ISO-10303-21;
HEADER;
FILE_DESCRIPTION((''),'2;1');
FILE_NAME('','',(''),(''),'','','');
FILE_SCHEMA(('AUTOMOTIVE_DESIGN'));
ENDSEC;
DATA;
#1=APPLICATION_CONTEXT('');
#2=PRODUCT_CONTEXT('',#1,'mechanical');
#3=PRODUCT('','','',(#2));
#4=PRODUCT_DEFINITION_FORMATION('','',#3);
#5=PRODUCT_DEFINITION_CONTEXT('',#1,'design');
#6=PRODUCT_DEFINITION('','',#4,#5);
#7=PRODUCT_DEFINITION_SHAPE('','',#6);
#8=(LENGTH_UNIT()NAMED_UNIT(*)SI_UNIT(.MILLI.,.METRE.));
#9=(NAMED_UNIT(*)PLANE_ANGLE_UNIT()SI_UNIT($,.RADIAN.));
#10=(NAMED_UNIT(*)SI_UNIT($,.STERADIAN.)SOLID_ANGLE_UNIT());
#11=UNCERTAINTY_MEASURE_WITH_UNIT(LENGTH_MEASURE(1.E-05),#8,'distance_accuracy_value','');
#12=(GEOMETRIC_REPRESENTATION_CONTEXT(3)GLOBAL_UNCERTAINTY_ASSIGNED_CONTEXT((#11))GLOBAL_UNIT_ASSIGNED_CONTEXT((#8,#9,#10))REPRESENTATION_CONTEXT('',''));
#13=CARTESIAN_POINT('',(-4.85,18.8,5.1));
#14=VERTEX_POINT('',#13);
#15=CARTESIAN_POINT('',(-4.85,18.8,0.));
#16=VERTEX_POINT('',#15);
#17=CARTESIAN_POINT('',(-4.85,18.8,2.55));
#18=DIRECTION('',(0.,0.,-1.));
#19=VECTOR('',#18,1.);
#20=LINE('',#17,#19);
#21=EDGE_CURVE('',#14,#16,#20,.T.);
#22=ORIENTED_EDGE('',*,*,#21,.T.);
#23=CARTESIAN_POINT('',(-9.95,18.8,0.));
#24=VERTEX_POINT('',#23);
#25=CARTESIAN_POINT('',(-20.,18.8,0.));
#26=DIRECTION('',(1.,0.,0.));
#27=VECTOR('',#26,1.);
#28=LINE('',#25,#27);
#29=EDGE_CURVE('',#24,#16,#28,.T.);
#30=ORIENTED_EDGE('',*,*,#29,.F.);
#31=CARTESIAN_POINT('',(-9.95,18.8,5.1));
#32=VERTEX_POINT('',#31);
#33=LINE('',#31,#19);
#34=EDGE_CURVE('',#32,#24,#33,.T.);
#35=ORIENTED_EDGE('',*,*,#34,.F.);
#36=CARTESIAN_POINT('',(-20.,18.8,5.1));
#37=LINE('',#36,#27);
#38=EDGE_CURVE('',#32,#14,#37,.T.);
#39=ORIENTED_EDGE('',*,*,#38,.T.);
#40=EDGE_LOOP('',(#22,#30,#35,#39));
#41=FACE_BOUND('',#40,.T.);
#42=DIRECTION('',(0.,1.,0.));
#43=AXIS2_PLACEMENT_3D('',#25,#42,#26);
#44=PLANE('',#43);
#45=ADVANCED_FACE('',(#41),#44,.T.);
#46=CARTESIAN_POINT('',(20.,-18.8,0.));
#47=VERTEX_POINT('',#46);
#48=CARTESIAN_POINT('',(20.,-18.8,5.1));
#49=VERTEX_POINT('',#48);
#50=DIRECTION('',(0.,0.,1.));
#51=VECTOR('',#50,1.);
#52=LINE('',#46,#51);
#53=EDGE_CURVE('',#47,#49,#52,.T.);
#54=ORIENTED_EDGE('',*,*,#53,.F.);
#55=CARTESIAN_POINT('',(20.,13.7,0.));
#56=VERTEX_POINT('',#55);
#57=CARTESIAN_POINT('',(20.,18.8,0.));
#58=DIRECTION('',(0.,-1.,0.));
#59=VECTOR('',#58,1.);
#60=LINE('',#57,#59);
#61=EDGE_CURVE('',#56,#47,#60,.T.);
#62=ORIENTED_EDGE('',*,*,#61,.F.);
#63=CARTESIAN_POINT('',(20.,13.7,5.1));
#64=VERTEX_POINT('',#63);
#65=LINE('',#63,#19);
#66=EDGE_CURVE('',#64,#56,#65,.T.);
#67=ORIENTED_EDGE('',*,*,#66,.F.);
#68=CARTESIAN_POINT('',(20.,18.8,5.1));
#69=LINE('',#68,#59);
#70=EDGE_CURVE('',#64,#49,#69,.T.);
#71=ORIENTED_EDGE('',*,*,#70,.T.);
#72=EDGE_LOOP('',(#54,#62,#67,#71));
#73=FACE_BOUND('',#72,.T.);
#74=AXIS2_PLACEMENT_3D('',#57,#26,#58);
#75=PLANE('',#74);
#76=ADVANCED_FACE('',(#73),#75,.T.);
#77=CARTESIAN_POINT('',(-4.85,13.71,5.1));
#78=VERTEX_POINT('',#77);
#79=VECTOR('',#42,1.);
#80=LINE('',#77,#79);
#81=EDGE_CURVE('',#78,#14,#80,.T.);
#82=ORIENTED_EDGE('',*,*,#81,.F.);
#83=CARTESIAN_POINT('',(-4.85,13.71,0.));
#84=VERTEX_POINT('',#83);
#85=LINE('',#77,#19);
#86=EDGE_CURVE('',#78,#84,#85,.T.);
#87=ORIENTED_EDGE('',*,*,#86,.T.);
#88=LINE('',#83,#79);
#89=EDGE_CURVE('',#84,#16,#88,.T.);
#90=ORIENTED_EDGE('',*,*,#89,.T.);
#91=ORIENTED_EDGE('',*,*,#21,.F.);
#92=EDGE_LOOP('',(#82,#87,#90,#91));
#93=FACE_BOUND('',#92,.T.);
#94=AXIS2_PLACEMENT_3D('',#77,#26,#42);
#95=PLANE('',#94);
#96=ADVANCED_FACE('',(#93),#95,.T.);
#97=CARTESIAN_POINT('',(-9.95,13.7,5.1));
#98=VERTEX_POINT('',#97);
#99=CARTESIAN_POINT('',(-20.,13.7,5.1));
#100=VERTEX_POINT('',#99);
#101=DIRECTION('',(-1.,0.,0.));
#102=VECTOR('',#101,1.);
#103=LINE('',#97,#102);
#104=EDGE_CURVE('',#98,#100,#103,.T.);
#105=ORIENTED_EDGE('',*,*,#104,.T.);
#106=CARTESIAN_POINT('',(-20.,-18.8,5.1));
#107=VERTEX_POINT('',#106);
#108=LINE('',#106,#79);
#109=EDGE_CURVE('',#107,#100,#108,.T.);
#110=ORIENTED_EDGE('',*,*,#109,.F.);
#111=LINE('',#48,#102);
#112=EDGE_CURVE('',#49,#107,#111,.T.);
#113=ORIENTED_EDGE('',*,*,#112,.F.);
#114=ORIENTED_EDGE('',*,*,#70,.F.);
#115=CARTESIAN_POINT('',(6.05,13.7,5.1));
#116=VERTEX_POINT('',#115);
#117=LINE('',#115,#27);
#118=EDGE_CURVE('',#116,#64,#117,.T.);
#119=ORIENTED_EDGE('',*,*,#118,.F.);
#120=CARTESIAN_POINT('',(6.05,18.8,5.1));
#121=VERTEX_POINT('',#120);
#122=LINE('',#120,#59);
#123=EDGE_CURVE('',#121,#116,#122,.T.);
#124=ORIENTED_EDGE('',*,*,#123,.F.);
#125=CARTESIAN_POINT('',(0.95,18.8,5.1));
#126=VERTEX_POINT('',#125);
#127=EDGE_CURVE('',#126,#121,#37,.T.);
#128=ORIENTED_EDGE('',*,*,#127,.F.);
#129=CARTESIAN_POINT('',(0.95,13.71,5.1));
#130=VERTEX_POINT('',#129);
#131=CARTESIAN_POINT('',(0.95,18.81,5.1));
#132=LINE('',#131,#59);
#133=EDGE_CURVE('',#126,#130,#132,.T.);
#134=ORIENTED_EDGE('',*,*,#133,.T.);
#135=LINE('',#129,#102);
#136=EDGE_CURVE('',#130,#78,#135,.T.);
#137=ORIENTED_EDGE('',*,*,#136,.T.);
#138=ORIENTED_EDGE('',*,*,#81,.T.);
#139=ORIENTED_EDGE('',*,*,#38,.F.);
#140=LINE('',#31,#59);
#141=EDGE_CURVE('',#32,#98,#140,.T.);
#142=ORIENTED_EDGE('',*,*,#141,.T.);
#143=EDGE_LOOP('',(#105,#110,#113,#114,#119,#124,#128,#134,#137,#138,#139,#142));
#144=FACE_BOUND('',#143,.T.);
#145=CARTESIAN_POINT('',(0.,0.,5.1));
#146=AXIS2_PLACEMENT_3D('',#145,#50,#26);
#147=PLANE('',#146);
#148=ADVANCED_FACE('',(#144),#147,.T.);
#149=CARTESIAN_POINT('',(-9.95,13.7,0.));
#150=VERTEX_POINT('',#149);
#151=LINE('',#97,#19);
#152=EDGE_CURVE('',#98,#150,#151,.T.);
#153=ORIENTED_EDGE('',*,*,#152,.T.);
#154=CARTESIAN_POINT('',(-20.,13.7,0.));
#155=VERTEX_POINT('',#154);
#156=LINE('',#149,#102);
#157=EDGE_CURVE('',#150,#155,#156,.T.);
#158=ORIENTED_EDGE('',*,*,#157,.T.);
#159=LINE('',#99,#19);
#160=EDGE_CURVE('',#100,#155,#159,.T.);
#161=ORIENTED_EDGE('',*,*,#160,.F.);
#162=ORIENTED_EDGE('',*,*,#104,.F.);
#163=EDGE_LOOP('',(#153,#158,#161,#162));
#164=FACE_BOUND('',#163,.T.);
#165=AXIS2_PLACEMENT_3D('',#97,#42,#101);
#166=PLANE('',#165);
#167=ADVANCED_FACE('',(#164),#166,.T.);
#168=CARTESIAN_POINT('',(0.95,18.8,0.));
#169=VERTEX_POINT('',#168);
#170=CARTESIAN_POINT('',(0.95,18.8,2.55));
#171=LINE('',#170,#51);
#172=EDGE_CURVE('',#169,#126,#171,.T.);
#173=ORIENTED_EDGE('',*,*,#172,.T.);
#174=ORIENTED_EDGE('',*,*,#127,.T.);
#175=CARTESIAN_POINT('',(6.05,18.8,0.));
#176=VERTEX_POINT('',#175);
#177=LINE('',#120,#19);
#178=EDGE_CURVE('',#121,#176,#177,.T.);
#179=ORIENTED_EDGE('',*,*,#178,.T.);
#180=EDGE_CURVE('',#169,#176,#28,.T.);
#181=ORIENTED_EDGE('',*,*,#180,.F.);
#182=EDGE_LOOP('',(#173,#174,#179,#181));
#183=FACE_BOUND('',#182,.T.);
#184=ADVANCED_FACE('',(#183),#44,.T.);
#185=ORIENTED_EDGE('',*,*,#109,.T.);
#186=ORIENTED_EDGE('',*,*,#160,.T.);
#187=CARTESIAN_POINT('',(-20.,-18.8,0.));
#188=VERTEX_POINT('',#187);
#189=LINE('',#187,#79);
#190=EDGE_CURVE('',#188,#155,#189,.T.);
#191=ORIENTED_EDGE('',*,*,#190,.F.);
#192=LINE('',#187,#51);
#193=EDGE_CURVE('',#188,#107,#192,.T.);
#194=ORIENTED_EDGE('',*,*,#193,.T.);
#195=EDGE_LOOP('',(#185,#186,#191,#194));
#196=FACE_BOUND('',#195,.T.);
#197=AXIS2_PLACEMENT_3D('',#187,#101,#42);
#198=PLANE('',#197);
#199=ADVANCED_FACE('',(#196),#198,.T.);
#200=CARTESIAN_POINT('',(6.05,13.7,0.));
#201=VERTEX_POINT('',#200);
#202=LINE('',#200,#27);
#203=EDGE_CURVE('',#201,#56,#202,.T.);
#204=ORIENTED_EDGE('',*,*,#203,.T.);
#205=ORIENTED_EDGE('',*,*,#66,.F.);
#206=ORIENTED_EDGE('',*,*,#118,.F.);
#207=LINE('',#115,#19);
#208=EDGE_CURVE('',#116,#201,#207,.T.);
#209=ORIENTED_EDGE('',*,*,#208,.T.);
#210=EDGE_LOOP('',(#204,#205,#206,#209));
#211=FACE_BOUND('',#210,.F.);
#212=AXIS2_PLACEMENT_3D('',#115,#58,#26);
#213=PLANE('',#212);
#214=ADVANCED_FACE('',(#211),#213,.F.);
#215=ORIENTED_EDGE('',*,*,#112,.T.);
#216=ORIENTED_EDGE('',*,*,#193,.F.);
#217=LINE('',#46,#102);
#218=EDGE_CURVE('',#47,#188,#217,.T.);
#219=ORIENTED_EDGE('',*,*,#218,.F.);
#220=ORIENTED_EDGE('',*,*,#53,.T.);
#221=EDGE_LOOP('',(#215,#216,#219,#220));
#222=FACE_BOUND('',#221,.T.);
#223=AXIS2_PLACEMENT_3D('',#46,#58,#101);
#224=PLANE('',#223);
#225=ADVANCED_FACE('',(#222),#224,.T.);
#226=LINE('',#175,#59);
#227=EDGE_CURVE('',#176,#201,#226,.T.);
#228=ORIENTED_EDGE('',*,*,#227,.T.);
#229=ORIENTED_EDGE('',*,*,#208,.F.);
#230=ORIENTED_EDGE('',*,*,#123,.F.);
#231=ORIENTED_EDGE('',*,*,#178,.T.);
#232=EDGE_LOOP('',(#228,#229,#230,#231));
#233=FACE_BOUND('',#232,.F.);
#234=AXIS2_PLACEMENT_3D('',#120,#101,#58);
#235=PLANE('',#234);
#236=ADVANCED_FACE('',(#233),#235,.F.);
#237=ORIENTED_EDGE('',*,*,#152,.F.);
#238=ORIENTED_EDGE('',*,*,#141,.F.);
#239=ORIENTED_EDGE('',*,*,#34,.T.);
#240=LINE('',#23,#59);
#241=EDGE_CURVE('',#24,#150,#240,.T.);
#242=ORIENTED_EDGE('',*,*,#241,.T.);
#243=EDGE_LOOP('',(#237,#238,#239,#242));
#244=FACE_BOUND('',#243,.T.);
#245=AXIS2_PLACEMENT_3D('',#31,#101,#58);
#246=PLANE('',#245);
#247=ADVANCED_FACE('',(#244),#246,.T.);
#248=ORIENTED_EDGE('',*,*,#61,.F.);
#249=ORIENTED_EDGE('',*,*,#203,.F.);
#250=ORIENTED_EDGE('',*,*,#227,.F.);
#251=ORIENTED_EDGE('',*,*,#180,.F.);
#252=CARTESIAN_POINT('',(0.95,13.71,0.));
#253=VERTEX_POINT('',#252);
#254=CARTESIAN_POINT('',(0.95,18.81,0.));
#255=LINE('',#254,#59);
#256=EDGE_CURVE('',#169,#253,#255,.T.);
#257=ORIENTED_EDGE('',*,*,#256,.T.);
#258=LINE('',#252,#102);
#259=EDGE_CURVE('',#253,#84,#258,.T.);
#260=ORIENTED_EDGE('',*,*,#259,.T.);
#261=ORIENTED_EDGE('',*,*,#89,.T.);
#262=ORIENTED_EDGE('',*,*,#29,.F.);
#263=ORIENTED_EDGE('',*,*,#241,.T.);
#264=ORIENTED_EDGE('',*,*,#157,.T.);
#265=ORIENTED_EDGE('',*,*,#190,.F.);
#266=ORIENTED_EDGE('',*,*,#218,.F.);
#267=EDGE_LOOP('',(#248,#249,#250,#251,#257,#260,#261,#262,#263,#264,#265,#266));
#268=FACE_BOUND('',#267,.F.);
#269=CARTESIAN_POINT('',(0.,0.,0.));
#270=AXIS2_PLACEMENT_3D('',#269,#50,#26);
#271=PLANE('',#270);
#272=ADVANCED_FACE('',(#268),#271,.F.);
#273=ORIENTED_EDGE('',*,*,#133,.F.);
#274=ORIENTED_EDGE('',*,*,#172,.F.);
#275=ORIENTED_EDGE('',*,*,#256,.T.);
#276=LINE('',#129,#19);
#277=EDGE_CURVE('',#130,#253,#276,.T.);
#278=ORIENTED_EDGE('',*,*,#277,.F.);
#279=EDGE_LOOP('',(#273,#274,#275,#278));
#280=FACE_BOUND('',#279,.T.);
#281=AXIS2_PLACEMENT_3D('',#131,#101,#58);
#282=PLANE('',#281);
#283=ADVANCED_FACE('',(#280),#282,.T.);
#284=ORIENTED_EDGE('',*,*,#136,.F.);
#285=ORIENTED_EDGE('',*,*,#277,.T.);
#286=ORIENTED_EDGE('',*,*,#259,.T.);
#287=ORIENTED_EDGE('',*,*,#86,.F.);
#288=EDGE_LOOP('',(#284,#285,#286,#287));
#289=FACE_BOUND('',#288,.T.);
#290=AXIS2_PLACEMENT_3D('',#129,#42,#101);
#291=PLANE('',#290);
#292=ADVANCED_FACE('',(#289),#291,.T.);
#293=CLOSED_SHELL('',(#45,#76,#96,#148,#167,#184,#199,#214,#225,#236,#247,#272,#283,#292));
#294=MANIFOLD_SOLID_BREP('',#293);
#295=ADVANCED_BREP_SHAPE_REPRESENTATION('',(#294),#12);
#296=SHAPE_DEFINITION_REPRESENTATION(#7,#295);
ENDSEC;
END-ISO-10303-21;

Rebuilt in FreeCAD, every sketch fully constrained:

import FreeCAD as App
import Part
import Sketcher

doc = App.newDocument("Part")
body = doc.addObject("PartDesign::Body", "Body")

# Sketch on XY plane
sketch1 = body.newObject("Sketcher::SketchObject", "Sketch")
sketch1.AttachmentSupport = (doc.getObject("XY_Plane"), [""])
sketch1.MapMode = "FlatFace"
sketch1.addGeometry([
    Part.LineSegment(App.Vector(-20, -18.8, 0), App.Vector(20, -18.8, 0)),
    Part.LineSegment(App.Vector(20, -18.8, 0), App.Vector(20, 18.8, 0)),
    Part.LineSegment(App.Vector(20, 18.8, 0), App.Vector(-20, 18.8, 0)),
    Part.LineSegment(App.Vector(-20, 18.8, 0), App.Vector(-20, -18.8, 0)),
], False)
sketch1.addConstraint([
    Sketcher.Constraint("Coincident", 0, 2, 1, 1),
    Sketcher.Constraint("Coincident", 1, 2, 2, 1),
    Sketcher.Constraint("Coincident", 2, 2, 3, 1),
    Sketcher.Constraint("Coincident", 3, 2, 0, 1),
    Sketcher.Constraint("Horizontal", 0),
    Sketcher.Constraint("Vertical", 1),
    Sketcher.Constraint("Horizontal", 2),
    Sketcher.Constraint("Vertical", 3),
    Sketcher.Constraint("Symmetric", 0, 2, 2, 2, -1, 1),
    Sketcher.Constraint("DistanceX", 0, 1, 0, 2, 40.0),
    Sketcher.Constraint("DistanceY", 1, 1, 1, 2, 37.6),
])
pad1 = body.newObject("PartDesign::Pad", "Pad")
pad1.Profile = sketch1
pad1.Length = 5.1

# Sketch on XY plane
sketch2 = body.newObject("Sketcher::SketchObject", "Sketch001")
sketch2.AttachmentSupport = (doc.getObject("XY_Plane"), [""])
sketch2.MapMode = "FlatFace"
sketch2.AttachmentOffset = App.Placement(App.Vector(0, 0, 5.1), App.Rotation())
sketch2.addGeometry([
    Part.LineSegment(App.Vector(-9.95, 18.8, 0), App.Vector(-20, 18.8, 0)),  # 0
    Part.LineSegment(App.Vector(-20, 18.8, 0), App.Vector(-20, 13.7, 0)),  # 1
    Part.LineSegment(App.Vector(-20, 13.7, 0), App.Vector(-9.95, 13.7, 0)),  # 2
    Part.LineSegment(App.Vector(-9.95, 13.7, 0), App.Vector(-9.95, 18.8, 0)),  # 3
    Part.LineSegment(App.Vector(0.95, 18.81, 0), App.Vector(-4.85, 18.81, 0)),  # 4
    Part.LineSegment(App.Vector(-4.85, 18.81, 0), App.Vector(-4.85, 13.71, 0)),  # 5
    Part.LineSegment(App.Vector(-4.85, 13.71, 0), App.Vector(0.95, 13.71, 0)),  # 6
    Part.LineSegment(App.Vector(0.95, 13.71, 0), App.Vector(0.95, 18.81, 0)),  # 7
    Part.LineSegment(App.Vector(6.05, 13.7, 0), App.Vector(20, 13.7, 0)),  # 8
    Part.LineSegment(App.Vector(20, 13.7, 0), App.Vector(20, 18.8, 0)),  # 9
    Part.LineSegment(App.Vector(20, 18.8, 0), App.Vector(6.05, 18.8, 0)),  # 10
    Part.LineSegment(App.Vector(6.05, 18.8, 0), App.Vector(6.05, 13.7, 0)),  # 11
], False)
sketch2.addConstraint([
    Sketcher.Constraint("Coincident", 0, 2, 1, 1),
    Sketcher.Constraint("Coincident", 1, 2, 2, 1),
    Sketcher.Constraint("Coincident", 2, 2, 3, 1),
    Sketcher.Constraint("Coincident", 3, 2, 0, 1),
    Sketcher.Constraint("Coincident", 4, 2, 5, 1),
    Sketcher.Constraint("Coincident", 5, 2, 6, 1),
    Sketcher.Constraint("Coincident", 6, 2, 7, 1),
    Sketcher.Constraint("Coincident", 7, 2, 4, 1),
    Sketcher.Constraint("Coincident", 8, 2, 9, 1),
    Sketcher.Constraint("Coincident", 9, 2, 10, 1),
    Sketcher.Constraint("Coincident", 10, 2, 11, 1),
    Sketcher.Constraint("Coincident", 11, 2, 8, 1),
    Sketcher.Constraint("Horizontal", 0),
    Sketcher.Constraint("Vertical", 1),
    Sketcher.Constraint("Horizontal", 2),
    Sketcher.Constraint("Vertical", 3),
    Sketcher.Constraint("Horizontal", 4),
    Sketcher.Constraint("Vertical", 5),
    Sketcher.Constraint("Horizontal", 6),
    Sketcher.Constraint("Vertical", 7),
    Sketcher.Constraint("Horizontal", 8),
    Sketcher.Constraint("Vertical", 9),
    Sketcher.Constraint("Horizontal", 10),
    Sketcher.Constraint("Vertical", 11),
    Sketcher.Constraint("Symmetric", 1, 2, 8, 2, -2),
    Sketcher.Constraint("Horizontal", 3, 2, 9, 2),
    Sketcher.Constraint("Equal", 3, 5),
    Sketcher.Constraint("DistanceX", 4, 2, 4, 1, 5.8),
    Sketcher.Constraint("DistanceY", 1, 2, 1, 1, 5.1),
    Sketcher.Constraint("DistanceX", 0, 2, 0, 1, 10.05),
    Sketcher.Constraint("DistanceX", 8, 1, 8, 2, 13.95),
    Sketcher.Constraint("DistanceX", 3, 2, 4, 2, 5.1),
    Sketcher.Constraint("DistanceX", 7, 2, 10, 2, 5.1),
    Sketcher.Constraint("DistanceY", -1, 1, 5, 2, 13.71),
    Sketcher.Constraint("DistanceY", -1, 1, 0, 2, 18.8),
])
pocket1 = body.newObject("PartDesign::Pocket", "Pocket")
pocket1.Profile = sketch2
pocket1.Length = 5.1

doc.recompute()
